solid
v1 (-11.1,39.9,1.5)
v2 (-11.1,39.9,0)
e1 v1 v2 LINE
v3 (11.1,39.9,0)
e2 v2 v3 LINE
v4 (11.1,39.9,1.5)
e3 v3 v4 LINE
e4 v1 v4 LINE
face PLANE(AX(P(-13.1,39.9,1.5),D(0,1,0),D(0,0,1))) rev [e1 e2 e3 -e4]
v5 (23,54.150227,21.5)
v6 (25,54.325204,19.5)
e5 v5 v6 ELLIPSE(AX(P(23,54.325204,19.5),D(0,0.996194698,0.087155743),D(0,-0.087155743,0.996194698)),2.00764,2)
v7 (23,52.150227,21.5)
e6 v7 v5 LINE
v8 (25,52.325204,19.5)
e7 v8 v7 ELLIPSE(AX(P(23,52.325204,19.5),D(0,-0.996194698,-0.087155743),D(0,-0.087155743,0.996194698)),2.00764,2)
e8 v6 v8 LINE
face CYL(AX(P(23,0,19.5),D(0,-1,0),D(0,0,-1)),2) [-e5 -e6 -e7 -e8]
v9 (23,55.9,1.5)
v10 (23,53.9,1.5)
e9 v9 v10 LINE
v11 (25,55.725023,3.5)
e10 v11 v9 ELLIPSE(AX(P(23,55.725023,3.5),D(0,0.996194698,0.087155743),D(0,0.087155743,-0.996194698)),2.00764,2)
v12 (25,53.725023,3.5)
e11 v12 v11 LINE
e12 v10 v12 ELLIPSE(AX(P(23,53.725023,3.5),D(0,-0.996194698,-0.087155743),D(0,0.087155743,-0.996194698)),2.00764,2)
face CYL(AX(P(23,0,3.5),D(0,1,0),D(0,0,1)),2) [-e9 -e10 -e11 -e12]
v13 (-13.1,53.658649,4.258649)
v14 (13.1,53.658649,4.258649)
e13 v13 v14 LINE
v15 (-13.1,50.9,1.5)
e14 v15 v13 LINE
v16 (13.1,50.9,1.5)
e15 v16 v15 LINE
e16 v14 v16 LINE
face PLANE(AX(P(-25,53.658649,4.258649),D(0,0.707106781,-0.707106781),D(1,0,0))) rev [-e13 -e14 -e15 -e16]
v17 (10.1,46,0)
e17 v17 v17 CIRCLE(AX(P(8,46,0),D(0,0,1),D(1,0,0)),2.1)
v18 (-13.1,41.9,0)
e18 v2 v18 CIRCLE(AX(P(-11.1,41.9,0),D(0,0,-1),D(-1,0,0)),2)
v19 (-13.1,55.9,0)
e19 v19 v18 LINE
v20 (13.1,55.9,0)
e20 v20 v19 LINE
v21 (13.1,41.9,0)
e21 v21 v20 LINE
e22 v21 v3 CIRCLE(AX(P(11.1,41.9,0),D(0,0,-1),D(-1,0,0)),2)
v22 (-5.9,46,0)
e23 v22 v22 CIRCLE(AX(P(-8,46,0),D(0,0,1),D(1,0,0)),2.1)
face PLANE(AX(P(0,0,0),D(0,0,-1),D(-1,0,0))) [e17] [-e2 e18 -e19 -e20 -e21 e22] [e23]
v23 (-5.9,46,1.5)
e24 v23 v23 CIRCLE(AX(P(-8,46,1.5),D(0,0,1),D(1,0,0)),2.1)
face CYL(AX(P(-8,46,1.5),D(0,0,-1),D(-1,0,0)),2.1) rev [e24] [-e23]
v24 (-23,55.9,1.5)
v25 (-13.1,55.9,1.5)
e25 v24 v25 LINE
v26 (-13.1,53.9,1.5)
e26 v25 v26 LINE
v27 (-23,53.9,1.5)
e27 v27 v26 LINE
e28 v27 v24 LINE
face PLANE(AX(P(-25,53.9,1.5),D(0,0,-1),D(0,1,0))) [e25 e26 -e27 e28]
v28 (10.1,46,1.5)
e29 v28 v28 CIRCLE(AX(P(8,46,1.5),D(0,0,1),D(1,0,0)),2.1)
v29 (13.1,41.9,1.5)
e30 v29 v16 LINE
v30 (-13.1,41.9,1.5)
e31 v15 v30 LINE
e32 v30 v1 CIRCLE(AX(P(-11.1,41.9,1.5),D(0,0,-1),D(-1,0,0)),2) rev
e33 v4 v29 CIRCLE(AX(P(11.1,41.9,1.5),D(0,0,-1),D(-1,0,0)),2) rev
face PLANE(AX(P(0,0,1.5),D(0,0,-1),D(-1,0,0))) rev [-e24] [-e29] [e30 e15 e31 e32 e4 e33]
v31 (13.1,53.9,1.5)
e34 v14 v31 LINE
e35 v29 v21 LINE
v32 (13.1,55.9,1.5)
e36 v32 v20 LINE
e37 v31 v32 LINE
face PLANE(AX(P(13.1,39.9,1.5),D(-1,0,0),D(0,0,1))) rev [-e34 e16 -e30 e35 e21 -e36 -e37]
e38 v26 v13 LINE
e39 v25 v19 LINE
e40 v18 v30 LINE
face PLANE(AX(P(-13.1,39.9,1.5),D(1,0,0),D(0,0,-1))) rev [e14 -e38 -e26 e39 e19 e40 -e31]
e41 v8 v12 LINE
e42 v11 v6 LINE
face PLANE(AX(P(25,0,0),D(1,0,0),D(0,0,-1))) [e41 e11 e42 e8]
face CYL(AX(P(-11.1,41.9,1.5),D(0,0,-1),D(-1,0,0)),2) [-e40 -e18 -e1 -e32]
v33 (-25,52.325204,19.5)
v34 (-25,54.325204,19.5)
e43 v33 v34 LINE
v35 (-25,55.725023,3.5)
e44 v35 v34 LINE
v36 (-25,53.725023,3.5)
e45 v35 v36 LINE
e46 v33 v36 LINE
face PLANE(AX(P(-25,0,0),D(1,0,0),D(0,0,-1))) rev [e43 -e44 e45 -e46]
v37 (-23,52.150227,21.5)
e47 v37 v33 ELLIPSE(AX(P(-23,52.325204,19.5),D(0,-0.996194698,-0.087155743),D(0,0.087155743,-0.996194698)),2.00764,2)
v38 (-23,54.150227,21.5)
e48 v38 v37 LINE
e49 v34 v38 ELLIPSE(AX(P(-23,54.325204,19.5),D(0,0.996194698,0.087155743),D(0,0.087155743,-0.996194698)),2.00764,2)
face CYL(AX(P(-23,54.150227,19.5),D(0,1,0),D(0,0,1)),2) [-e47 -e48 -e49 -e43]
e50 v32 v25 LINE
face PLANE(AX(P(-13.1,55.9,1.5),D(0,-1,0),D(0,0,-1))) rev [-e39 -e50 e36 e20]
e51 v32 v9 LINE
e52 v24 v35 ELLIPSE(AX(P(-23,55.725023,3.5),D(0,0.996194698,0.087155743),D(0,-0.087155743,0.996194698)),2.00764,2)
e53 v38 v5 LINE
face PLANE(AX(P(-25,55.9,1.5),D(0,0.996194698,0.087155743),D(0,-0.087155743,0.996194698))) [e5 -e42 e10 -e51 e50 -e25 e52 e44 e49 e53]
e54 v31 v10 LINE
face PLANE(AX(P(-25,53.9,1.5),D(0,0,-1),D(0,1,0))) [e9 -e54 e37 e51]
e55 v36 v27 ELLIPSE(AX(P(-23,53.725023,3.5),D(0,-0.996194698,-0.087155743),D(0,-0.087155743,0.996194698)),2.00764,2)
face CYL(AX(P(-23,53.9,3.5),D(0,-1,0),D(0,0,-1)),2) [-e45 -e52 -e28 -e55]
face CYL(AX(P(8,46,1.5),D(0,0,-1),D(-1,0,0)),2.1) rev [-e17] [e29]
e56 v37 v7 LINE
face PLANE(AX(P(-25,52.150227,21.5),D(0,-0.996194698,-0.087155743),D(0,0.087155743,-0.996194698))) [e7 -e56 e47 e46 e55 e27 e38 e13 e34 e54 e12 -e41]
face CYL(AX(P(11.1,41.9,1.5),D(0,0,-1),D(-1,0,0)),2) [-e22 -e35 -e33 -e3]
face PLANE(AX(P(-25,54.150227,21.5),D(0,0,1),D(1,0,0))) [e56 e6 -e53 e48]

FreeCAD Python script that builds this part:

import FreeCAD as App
import Part
import Sketcher
from FreeCAD import Vector
Q = App.Units.Quantity


def edges_at(feature, points):
    """Names of the edges that pass closest to the given points."""
    edges = feature.Shape.Edges
    near = lambda p: min(range(len(edges)), key=lambda i: edges[i].distToShape(Part.Vertex(*p))[0])
    return sorted({f"Edge{near(p) + 1}" for p in points})


def add_polygon(sketch, points):
    """Adds a closed chain of lines whose ends are joined by coincident constraints."""
    first, n = sketch.GeometryCount, len(points)
    for a, b in zip(points, points[1:] + points[:1]):
        sketch.addGeometry(Part.LineSegment(App.Vector(*a, 0), App.Vector(*b, 0)), False)
    for i in range(n):
        sketch.addConstraint(Sketcher.Constraint("Coincident", first + i, 2, first + (i + 1) % n, 1))

doc = App.newDocument("Part")
body = doc.addObject("PartDesign::Body", "Body")

# Sketch on XY plane
sketch1 = body.newObject("Sketcher::SketchObject", "Sketch")
sketch1.AttachmentSupport = (doc.getObject("XY_Plane"), [""])
sketch1.MapMode = "FlatFace"
add_polygon(sketch1, [(-13.1, 55.9), (-13.1, 39.9), (13.1, 39.9), (13.1, 55.9)])  # lines 0-3
sketch1.addGeometry(Part.Circle(Vector(-8, 46, 0), Vector(0, 0, 1), 2.1), False)  # 4
sketch1.addGeometry(Part.Circle(Vector(8, 46, 0), Vector(0, 0, 1), 2.1), False)  # 5
sketch1.addConstraint(Sketcher.Constraint("Vertical", 0))
sketch1.addConstraint(Sketcher.Constraint("Horizontal", 1))
sketch1.addConstraint(Sketcher.Constraint("Vertical", 2))
sketch1.addConstraint(Sketcher.Constraint("Horizontal", 3))
sketch1.addConstraint(Sketcher.Constraint("Equal", 4, 5))
sketch1.addConstraint(Sketcher.Constraint("Symmetric", 4, 3, 5, 3, -2))
sketch1.addConstraint(Sketcher.Constraint("Diameter", 4, 4.2))
sketch1.addConstraint(Sketcher.Constraint("DistanceY", 0, 2, 0, 1, 16.0))
sketch1.addConstraint(Sketcher.Constraint("DistanceX", 1, 1, 1, 2, 26.2))
sketch1.addConstraint(Sketcher.Constraint("DistanceX", 4, 3, -1, 1, 8.0))
sketch1.addConstraint(Sketcher.Constraint("DistanceY", -1, 1, 4, 3, 46.0))
sketch1.addConstraint(Sketcher.Constraint("DistanceX", 0, 2, -1, 1, 13.1))
sketch1.addConstraint(Sketcher.Constraint("DistanceY", -1, 1, 0, 2, 39.9))
pad1 = body.newObject("PartDesign::Pad", "Pad")
pad1.Profile = sketch1
pad1.Length = 1.5

# Sketch on YZ plane
sketch2 = body.newObject("Sketcher::SketchObject", "Sketch001")
sketch2.AttachmentSupport = (doc.getObject("YZ_Plane"), [""])
sketch2.MapMode = "FlatFace"
add_polygon(sketch2, [(55.9, 1.5), (54.2, 21.5), (52.2, 21.5), (53.9, 1.5)])  # lines 0-3
sketch2.addConstraint(Sketcher.Constraint("Horizontal", 1))
sketch2.addConstraint(Sketcher.Constraint("Horizontal", 3))
sketch2.addConstraint(Sketcher.Constraint("Parallel", 0, 2))
sketch2.addConstraint(Sketcher.Constraint("DistanceX", 1, 2, 1, 1, 2.0))
sketch2.addConstraint(Sketcher.Constraint("Angle", 0, Q("95 deg")))
sketch2.addConstraint(Sketcher.Constraint("DistanceY", 2, 2, 0, 2, 20.0))
sketch2.addConstraint(Sketcher.Constraint("DistanceY", -1, 1, 0, 2, 21.5))
sketch2.addConstraint(Sketcher.Constraint("DistanceX", -1, 1, 2, 2, 53.9))
pad2 = body.newObject("PartDesign::Pad", "Pad001")
pad2.Profile = sketch2
pad2.Length = 50
pad2.Midplane = True
doc.recompute()

chamfer = body.newObject("PartDesign::Chamfer", "Chamfer")
chamfer.Base = (pad2, edges_at(pad2, [(0, 53.9, 1.5)]))
chamfer.ChamferType = "Two distances"
chamfer.Size = 3
chamfer.Size2 = 2.769187
doc.recompute()

fillet = body.newObject("PartDesign::Fillet", "Fillet")
fillet.Base = (chamfer, edges_at(chamfer, [
    (-25, 54.9, 1.5),
    (-25, 53.15, 21.5),
    (25, 54.9, 1.5),
    (25, 53.15, 21.5),
    (13.1, 39.9, 0.75),
    (-13.1, 39.9, 0.75),
]))
fillet.Radius = 2

doc.recompute()
